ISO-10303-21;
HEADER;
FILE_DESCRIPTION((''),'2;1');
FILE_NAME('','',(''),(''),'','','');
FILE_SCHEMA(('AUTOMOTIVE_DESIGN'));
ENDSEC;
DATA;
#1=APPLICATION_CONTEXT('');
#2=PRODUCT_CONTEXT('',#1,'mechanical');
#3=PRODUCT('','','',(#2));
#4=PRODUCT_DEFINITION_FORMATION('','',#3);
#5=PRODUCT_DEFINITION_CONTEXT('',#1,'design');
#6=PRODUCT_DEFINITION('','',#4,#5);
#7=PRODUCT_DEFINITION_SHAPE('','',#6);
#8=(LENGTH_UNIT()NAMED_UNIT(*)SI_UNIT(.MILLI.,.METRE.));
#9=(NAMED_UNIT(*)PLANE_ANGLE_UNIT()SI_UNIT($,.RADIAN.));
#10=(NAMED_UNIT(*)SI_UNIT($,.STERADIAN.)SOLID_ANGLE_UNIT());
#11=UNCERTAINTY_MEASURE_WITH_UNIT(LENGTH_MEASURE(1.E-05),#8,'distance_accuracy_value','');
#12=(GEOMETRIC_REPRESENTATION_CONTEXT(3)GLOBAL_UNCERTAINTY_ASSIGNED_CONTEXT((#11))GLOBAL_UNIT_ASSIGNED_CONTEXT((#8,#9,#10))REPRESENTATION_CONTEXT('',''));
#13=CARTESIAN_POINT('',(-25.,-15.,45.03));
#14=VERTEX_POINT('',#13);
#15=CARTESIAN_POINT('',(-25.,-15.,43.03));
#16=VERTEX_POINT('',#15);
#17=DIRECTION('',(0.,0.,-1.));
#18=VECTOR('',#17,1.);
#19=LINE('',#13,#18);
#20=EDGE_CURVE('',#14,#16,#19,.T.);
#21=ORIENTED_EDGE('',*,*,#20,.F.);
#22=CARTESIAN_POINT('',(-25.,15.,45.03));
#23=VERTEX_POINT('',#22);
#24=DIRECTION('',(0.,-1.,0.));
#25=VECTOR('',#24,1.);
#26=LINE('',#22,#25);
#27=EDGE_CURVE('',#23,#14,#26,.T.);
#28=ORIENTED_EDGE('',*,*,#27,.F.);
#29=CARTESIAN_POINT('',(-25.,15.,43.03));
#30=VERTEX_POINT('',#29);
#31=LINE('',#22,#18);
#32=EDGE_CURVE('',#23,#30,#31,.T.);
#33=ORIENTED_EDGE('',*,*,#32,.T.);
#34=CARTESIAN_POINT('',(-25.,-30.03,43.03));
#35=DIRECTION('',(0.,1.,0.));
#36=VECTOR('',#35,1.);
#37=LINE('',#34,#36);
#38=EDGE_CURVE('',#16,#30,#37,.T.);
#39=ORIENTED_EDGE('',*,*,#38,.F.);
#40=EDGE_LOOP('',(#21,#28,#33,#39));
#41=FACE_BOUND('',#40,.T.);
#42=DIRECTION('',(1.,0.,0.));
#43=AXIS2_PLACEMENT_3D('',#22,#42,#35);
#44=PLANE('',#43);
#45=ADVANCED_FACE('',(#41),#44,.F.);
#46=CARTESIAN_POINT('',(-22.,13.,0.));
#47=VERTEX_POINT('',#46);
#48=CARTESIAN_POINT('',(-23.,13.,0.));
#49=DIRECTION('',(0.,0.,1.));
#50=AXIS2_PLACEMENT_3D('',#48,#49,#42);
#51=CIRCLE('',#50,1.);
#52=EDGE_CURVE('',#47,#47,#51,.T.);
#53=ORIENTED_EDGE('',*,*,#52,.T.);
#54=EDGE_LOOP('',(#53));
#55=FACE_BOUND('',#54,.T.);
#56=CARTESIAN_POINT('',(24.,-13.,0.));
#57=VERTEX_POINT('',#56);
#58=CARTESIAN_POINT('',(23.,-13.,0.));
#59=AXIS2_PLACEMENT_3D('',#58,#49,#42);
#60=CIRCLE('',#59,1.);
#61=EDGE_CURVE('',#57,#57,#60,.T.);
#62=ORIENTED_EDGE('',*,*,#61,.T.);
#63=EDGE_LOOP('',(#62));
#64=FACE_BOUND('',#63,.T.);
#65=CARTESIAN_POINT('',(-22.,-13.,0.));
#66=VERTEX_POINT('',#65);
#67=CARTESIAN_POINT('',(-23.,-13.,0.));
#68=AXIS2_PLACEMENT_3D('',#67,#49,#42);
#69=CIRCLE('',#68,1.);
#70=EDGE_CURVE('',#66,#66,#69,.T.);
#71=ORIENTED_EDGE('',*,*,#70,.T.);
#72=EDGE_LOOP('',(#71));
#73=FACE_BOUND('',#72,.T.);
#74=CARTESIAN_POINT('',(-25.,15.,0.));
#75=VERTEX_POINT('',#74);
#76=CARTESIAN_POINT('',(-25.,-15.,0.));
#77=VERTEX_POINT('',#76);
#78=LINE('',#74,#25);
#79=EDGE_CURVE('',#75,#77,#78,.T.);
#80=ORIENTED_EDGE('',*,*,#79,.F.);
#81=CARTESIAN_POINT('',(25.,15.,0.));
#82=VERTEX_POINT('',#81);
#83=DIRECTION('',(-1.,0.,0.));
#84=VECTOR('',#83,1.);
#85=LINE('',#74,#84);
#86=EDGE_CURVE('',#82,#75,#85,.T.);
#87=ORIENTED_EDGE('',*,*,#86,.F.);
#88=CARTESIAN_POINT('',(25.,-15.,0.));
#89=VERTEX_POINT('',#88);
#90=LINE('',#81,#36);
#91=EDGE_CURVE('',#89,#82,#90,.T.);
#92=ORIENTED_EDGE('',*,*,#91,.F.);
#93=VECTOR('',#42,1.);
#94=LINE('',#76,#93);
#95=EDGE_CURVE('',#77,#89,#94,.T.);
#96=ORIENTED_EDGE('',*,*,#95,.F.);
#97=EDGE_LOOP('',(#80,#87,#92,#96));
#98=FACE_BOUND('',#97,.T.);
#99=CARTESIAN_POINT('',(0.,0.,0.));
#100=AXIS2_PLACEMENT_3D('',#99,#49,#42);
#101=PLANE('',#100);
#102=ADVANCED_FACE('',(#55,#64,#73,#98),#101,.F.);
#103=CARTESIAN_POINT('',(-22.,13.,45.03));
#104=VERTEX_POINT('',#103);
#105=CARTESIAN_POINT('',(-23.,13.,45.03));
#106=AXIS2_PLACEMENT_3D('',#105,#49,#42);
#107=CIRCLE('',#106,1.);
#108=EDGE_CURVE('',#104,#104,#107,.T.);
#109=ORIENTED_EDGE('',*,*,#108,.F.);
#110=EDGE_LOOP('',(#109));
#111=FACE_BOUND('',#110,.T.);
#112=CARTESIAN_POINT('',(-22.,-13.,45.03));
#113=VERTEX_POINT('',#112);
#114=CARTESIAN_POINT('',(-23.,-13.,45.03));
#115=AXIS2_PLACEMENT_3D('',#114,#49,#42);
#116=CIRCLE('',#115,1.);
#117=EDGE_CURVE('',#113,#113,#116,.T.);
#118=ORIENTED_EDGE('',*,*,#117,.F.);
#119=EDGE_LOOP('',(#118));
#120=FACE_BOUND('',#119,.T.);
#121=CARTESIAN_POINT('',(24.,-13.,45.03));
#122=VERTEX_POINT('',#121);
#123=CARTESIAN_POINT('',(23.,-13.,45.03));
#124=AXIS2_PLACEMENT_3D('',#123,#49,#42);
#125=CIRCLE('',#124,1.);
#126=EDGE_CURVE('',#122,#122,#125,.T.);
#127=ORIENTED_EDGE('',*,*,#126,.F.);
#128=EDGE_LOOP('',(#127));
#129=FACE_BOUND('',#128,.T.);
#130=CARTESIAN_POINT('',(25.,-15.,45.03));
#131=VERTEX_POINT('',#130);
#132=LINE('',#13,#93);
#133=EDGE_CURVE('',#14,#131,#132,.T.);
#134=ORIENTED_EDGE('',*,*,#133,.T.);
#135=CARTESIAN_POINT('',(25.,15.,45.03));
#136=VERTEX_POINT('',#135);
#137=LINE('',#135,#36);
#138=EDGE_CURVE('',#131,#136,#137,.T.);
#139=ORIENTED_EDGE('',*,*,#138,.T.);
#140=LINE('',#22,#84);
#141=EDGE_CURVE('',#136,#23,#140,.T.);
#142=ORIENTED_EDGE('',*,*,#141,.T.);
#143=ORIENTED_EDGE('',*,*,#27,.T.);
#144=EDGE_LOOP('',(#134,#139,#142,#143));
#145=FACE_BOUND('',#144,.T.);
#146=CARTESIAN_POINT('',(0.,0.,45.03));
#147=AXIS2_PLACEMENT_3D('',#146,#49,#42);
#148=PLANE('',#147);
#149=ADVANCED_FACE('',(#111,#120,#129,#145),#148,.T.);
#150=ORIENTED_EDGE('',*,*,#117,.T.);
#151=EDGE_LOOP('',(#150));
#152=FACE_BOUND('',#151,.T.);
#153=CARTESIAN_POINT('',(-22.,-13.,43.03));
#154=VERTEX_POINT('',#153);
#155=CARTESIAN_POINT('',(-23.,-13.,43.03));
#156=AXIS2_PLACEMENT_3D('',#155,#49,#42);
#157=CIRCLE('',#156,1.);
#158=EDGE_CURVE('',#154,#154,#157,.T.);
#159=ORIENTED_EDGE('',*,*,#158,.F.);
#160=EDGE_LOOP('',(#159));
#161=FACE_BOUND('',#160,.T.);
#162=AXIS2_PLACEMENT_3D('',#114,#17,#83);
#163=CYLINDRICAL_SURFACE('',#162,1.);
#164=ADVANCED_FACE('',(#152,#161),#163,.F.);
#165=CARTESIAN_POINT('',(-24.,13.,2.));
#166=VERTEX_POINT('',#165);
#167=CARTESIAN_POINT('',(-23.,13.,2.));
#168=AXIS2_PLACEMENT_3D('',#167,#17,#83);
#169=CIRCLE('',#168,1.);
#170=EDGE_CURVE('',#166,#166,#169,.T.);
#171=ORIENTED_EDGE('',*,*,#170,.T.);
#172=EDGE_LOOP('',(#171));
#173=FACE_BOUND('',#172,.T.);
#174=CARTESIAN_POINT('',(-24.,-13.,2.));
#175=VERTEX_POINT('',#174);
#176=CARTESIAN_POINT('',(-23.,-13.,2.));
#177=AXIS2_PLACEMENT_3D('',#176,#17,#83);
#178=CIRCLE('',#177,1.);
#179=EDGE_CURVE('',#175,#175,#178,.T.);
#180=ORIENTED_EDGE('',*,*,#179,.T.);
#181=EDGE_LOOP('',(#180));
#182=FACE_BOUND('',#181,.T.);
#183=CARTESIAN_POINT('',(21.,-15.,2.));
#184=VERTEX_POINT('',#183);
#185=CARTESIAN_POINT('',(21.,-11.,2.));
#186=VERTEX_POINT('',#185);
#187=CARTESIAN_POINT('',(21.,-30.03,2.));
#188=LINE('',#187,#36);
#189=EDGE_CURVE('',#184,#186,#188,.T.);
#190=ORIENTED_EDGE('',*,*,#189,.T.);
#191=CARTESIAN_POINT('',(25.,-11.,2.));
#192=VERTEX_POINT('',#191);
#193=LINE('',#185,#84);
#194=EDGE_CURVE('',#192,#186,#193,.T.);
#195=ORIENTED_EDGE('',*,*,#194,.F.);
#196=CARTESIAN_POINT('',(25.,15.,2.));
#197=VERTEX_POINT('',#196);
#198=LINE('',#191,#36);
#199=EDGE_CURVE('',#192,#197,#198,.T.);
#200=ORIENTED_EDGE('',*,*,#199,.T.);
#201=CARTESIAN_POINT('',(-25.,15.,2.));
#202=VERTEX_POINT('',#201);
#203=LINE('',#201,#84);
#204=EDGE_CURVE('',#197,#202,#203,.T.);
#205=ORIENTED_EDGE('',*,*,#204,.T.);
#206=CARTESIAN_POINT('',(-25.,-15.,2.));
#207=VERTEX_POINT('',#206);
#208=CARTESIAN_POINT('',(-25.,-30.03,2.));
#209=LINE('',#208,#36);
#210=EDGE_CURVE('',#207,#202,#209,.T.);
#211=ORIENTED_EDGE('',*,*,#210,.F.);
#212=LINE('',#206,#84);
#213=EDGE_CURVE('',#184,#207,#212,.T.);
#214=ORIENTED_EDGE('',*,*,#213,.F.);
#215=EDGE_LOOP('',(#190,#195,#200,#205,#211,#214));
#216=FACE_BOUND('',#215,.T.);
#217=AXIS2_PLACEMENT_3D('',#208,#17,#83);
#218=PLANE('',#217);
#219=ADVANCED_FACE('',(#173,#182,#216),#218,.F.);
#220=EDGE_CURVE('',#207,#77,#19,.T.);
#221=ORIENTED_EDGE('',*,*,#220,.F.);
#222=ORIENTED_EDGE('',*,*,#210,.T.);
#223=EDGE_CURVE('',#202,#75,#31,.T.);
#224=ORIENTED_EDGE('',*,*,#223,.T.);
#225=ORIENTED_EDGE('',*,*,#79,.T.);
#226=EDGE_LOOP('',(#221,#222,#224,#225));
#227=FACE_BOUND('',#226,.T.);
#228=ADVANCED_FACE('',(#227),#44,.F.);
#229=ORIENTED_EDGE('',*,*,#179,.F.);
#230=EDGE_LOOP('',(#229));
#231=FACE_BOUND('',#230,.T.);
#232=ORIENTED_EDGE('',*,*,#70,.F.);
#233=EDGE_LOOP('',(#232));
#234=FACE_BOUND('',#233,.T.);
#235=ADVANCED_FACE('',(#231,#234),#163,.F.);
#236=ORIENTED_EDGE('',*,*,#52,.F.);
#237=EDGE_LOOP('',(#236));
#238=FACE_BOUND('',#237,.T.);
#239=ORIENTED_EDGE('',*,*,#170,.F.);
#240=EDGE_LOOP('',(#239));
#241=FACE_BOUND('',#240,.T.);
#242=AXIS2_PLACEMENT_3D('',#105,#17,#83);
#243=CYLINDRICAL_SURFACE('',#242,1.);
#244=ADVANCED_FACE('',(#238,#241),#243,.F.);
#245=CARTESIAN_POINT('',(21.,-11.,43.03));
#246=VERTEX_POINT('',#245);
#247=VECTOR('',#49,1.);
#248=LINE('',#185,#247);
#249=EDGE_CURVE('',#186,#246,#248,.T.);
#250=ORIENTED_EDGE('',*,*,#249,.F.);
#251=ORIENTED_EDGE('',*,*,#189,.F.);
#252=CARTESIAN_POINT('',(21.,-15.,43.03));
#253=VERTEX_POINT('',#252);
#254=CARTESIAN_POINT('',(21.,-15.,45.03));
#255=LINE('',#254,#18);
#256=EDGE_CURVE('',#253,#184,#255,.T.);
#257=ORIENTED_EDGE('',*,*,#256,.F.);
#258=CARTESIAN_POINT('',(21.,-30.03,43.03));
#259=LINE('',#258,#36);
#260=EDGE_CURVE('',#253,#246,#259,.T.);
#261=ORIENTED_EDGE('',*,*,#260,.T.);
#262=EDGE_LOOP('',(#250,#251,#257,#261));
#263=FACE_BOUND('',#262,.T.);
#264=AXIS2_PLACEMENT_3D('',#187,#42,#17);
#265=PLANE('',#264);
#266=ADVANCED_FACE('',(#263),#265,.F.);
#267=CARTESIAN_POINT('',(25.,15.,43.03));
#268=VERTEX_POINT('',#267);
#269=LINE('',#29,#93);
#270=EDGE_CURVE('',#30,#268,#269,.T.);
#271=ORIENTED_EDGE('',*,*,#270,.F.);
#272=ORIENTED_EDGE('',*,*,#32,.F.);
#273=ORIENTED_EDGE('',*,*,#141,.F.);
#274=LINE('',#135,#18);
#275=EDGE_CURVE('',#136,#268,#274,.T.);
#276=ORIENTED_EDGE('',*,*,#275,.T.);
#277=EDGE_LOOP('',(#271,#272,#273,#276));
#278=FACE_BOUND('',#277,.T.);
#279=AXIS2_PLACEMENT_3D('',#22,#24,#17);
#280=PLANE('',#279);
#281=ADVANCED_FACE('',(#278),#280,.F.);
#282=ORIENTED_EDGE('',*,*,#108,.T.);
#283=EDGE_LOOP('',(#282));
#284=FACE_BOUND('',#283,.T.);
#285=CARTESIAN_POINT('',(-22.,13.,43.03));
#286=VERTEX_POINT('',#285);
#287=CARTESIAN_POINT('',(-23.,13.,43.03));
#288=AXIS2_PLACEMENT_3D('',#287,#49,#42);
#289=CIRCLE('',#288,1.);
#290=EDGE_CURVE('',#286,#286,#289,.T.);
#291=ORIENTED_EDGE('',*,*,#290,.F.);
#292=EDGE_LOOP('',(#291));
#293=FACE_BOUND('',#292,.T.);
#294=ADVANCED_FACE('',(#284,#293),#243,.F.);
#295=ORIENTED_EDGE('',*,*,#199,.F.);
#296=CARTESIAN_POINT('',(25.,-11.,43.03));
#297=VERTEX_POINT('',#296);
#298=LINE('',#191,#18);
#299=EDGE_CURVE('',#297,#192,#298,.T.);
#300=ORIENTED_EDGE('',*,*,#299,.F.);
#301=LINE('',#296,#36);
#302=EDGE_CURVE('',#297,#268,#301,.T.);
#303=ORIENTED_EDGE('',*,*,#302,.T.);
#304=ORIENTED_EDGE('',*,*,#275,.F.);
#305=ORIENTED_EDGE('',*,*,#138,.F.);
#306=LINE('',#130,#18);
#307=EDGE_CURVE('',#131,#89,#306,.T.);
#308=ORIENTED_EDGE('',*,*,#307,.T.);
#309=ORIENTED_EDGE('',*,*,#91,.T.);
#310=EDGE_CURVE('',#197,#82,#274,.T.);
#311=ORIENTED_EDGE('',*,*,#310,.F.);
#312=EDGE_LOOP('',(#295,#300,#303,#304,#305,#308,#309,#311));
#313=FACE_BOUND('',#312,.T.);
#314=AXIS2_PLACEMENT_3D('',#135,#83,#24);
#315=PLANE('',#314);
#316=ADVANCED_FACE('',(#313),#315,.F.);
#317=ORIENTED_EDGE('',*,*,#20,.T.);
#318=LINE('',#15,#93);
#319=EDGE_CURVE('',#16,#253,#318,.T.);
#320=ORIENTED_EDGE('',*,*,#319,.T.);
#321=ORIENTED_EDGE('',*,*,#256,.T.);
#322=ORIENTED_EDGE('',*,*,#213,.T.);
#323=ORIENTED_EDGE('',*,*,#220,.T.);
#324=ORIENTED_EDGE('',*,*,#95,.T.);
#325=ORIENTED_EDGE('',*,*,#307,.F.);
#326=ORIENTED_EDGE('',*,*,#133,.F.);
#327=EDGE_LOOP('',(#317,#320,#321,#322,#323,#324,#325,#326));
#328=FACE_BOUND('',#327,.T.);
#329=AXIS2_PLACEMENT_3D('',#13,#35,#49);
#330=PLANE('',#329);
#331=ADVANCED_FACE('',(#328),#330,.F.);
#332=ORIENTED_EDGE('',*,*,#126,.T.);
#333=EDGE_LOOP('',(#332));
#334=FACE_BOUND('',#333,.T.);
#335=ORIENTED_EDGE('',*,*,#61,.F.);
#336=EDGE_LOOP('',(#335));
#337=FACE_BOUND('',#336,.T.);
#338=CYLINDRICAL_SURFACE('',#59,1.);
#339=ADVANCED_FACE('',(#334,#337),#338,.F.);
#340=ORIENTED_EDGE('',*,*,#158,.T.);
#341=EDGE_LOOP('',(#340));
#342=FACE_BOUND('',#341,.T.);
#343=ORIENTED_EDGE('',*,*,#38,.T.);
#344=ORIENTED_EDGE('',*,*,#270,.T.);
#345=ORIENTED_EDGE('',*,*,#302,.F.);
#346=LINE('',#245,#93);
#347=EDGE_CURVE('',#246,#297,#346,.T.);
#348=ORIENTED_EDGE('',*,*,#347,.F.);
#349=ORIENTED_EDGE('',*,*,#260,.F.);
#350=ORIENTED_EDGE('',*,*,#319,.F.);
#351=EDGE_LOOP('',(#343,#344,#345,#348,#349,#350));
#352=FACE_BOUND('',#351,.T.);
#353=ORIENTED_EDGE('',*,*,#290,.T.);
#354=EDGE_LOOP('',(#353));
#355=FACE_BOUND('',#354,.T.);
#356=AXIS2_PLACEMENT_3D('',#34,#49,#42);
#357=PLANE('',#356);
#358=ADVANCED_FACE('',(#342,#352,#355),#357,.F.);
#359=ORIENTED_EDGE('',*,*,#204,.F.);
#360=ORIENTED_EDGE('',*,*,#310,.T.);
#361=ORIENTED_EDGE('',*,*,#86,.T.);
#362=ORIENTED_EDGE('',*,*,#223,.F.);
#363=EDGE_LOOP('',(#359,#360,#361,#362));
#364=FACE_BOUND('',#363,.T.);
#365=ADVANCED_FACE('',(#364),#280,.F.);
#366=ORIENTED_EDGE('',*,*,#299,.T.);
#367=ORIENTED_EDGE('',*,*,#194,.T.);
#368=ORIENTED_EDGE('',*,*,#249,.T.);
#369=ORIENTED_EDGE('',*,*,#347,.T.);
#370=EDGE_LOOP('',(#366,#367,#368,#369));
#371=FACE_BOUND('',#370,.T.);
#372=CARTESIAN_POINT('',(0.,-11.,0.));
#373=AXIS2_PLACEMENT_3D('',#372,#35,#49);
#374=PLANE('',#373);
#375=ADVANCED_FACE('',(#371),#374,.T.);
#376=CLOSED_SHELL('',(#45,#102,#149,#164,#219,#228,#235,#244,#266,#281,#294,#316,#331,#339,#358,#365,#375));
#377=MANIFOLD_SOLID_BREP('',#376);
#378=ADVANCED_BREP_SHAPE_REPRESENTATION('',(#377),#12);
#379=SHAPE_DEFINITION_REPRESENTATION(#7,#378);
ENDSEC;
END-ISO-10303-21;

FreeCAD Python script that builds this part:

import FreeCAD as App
import Part
import Sketcher
from FreeCAD import Vector

doc = App.newDocument("Part")
body = doc.addObject("PartDesign::Body", "Body")

# Sketch on XY plane
sketch1 = body.newObject("Sketcher::SketchObject", "Sketch")
sketch1.AttachmentSupport = (doc.getObject("XY_Plane"), [""])
sketch1.MapMode = "FlatFace"
sketch1.addGeometry([
    Part.LineSegment(Vector(-25, 15, 0), Vector(-25, -15, 0)),  # 0
    Part.LineSegment(Vector(-25, -15, 0), Vector(25, -15, 0)),  # 1
    Part.LineSegment(Vector(25, -15, 0), Vector(25, 15, 0)),  # 2
    Part.LineSegment(Vector(25, 15, 0), Vector(-25, 15, 0)),  # 3
    Part.Circle(Vector(-23, -13, 0), Vector(0, 0, 1), 1),  # 4
    Part.Circle(Vector(-23, 13, 0), Vector(0, 0, 1), 1),  # 5
], False)
sketch1.addConstraint([
    Sketcher.Constraint("Coincident", 0, 2, 1, 1),
    Sketcher.Constraint("Coincident", 1, 2, 2, 1),
    Sketcher.Constraint("Coincident", 2, 2, 3, 1),
    Sketcher.Constraint("Coincident", 3, 2, 0, 1),
    Sketcher.Constraint("Vertical", 0),
    Sketcher.Constraint("Horizontal", 1),
    Sketcher.Constraint("Vertical", 2),
    Sketcher.Constraint("Horizontal", 3),
    Sketcher.Constraint("Equal", 4, 5),
    Sketcher.Constraint("Symmetric", 0, 2, 2, 2, -1, 1),
    Sketcher.Constraint("Symmetric", 4, 3, 5, 3, -1),
    Sketcher.Constraint("Diameter", 4, 2.0),
    Sketcher.Constraint("DistanceX", 1, 1, 1, 2, 50.0),
    Sketcher.Constraint("DistanceY", 0, 2, 0, 1, 30.0),
    Sketcher.Constraint("DistanceX", 4, 3, -1, 1, 23.0),
    Sketcher.Constraint("DistanceY", 4, 3, -1, 1, 13.0),
])
pad1 = body.newObject("PartDesign::Pad", "Pad")
pad1.Profile = sketch1
pad1.Length = 45.03

# Sketch on XZ plane
sketch2 = body.newObject("Sketcher::SketchObject", "Sketch001")
sketch2.AttachmentSupport = (doc.getObject("XZ_Plane"), [""])
sketch2.MapMode = "FlatFace"
sketch2.AttachmentOffset = App.Placement(Vector(0, 0, -15), App.Rotation())
sketch2.addGeometry([
    Part.LineSegment(Vector(-25, 2, 0), Vector(-25, 43, 0)),
    Part.LineSegment(Vector(-25, 43, 0), Vector(21, 43, 0)),
    Part.LineSegment(Vector(21, 43, 0), Vector(21, 2, 0)),
    Part.LineSegment(Vector(21, 2, 0), Vector(-25, 2, 0)),
], False)
sketch2.addConstraint([
    Sketcher.Constraint("Coincident", 0, 2, 1, 1),
    Sketcher.Constraint("Coincident", 1, 2, 2, 1),
    Sketcher.Constraint("Coincident", 2, 2, 3, 1),
    Sketcher.Constraint("Coincident", 3, 2, 0, 1),
    Sketcher.Constraint("Vertical", 0),
    Sketcher.Constraint("Horizontal", 1),
    Sketcher.Constraint("Vertical", 2),
    Sketcher.Constraint("Horizontal", 3),
    Sketcher.Constraint("DistanceX", 1, 1, 1, 2, 46.0),
    Sketcher.Constraint("DistanceX", 0, 2, -1, 1, 25.0),
    Sketcher.Constraint("DistanceY", -1, 1, 2, 2, 2.0),
    Sketcher.Constraint("DistanceY", 0, 1, 0, 2, 41.03),
])
pocket1 = body.newObject("PartDesign::Pocket", "Pocket")
pocket1.Profile = sketch2
pocket1.Length = 45.03
pocket1.Reversed = True

# Sketch on XY plane
sketch3 = body.newObject("Sketcher::SketchObject", "Sketch002")
sketch3.AttachmentSupport = (doc.getObject("XY_Plane"), [""])
sketch3.MapMode = "FlatFace"
sketch3.AttachmentOffset = App.Placement(Vector(0, 0, 45.03), App.Rotation())
sketch3.addGeometry(Part.Circle(Vector(23, -13, 0), Vector(0, 0, 1), 1), False)
sketch3.addConstraint([
    Sketcher.Constraint("Diameter", 0, 2.0),
    Sketcher.Constraint("DistanceX", -1, 1, 0, 3, 23.0),
    Sketcher.Constraint("DistanceY", 0, 3, -1, 1, 13.0),
])
pocket2 = body.newObject("PartDesign::Pocket", "Pocket001")
pocket2.Profile = sketch3
pocket2.Length = 45.03

# Sketch on XZ plane
sketch4 = body.newObject("Sketcher::SketchObject", "Sketch003")
sketch4.AttachmentSupport = (doc.getObject("XZ_Plane"), [""])
sketch4.MapMode = "FlatFace"
sketch4.AttachmentOffset = App.Placement(Vector(0, 0, -15), App.Rotation())
sketch4.addGeometry([
    Part.LineSegment(Vector(21, 2, 0), Vector(21, 43, 0)),
    Part.LineSegment(Vector(21, 43, 0), Vector(25, 43, 0)),
    Part.LineSegment(Vector(25, 43, 0), Vector(25, 2, 0)),
    Part.LineSegment(Vector(25, 2, 0), Vector(21, 2, 0)),
], False)
sketch4.addConstraint([
    Sketcher.Constraint("Coincident", 0, 2, 1, 1),
    Sketcher.Constraint("Coincident", 1, 2, 2, 1),
    Sketcher.Constraint("Coincident", 2, 2, 3, 1),
    Sketcher.Constraint("Coincident", 3, 2, 0, 1),
    Sketcher.Constraint("Vertical", 0),
    Sketcher.Constraint("Horizontal", 1),
    Sketcher.Constraint("Vertical", 2),
    Sketcher.Constraint("Horizontal", 3),
    Sketcher.Constraint("DistanceX", 1, 1, 1, 2, 4.0),
    Sketcher.Constraint("DistanceX", -1, 1, 0, 2, 21.0),
    Sketcher.Constraint("DistanceY", -1, 1, 2, 2, 2.0),
    Sketcher.Constraint("DistanceY", 0, 1, 0, 2, 41.03),
])
pocket3 = body.newObject("PartDesign::Pocket", "Pocket002")
pocket3.Profile = sketch4
pocket3.Length = 26
pocket3.Reversed = True

doc.recompute()
